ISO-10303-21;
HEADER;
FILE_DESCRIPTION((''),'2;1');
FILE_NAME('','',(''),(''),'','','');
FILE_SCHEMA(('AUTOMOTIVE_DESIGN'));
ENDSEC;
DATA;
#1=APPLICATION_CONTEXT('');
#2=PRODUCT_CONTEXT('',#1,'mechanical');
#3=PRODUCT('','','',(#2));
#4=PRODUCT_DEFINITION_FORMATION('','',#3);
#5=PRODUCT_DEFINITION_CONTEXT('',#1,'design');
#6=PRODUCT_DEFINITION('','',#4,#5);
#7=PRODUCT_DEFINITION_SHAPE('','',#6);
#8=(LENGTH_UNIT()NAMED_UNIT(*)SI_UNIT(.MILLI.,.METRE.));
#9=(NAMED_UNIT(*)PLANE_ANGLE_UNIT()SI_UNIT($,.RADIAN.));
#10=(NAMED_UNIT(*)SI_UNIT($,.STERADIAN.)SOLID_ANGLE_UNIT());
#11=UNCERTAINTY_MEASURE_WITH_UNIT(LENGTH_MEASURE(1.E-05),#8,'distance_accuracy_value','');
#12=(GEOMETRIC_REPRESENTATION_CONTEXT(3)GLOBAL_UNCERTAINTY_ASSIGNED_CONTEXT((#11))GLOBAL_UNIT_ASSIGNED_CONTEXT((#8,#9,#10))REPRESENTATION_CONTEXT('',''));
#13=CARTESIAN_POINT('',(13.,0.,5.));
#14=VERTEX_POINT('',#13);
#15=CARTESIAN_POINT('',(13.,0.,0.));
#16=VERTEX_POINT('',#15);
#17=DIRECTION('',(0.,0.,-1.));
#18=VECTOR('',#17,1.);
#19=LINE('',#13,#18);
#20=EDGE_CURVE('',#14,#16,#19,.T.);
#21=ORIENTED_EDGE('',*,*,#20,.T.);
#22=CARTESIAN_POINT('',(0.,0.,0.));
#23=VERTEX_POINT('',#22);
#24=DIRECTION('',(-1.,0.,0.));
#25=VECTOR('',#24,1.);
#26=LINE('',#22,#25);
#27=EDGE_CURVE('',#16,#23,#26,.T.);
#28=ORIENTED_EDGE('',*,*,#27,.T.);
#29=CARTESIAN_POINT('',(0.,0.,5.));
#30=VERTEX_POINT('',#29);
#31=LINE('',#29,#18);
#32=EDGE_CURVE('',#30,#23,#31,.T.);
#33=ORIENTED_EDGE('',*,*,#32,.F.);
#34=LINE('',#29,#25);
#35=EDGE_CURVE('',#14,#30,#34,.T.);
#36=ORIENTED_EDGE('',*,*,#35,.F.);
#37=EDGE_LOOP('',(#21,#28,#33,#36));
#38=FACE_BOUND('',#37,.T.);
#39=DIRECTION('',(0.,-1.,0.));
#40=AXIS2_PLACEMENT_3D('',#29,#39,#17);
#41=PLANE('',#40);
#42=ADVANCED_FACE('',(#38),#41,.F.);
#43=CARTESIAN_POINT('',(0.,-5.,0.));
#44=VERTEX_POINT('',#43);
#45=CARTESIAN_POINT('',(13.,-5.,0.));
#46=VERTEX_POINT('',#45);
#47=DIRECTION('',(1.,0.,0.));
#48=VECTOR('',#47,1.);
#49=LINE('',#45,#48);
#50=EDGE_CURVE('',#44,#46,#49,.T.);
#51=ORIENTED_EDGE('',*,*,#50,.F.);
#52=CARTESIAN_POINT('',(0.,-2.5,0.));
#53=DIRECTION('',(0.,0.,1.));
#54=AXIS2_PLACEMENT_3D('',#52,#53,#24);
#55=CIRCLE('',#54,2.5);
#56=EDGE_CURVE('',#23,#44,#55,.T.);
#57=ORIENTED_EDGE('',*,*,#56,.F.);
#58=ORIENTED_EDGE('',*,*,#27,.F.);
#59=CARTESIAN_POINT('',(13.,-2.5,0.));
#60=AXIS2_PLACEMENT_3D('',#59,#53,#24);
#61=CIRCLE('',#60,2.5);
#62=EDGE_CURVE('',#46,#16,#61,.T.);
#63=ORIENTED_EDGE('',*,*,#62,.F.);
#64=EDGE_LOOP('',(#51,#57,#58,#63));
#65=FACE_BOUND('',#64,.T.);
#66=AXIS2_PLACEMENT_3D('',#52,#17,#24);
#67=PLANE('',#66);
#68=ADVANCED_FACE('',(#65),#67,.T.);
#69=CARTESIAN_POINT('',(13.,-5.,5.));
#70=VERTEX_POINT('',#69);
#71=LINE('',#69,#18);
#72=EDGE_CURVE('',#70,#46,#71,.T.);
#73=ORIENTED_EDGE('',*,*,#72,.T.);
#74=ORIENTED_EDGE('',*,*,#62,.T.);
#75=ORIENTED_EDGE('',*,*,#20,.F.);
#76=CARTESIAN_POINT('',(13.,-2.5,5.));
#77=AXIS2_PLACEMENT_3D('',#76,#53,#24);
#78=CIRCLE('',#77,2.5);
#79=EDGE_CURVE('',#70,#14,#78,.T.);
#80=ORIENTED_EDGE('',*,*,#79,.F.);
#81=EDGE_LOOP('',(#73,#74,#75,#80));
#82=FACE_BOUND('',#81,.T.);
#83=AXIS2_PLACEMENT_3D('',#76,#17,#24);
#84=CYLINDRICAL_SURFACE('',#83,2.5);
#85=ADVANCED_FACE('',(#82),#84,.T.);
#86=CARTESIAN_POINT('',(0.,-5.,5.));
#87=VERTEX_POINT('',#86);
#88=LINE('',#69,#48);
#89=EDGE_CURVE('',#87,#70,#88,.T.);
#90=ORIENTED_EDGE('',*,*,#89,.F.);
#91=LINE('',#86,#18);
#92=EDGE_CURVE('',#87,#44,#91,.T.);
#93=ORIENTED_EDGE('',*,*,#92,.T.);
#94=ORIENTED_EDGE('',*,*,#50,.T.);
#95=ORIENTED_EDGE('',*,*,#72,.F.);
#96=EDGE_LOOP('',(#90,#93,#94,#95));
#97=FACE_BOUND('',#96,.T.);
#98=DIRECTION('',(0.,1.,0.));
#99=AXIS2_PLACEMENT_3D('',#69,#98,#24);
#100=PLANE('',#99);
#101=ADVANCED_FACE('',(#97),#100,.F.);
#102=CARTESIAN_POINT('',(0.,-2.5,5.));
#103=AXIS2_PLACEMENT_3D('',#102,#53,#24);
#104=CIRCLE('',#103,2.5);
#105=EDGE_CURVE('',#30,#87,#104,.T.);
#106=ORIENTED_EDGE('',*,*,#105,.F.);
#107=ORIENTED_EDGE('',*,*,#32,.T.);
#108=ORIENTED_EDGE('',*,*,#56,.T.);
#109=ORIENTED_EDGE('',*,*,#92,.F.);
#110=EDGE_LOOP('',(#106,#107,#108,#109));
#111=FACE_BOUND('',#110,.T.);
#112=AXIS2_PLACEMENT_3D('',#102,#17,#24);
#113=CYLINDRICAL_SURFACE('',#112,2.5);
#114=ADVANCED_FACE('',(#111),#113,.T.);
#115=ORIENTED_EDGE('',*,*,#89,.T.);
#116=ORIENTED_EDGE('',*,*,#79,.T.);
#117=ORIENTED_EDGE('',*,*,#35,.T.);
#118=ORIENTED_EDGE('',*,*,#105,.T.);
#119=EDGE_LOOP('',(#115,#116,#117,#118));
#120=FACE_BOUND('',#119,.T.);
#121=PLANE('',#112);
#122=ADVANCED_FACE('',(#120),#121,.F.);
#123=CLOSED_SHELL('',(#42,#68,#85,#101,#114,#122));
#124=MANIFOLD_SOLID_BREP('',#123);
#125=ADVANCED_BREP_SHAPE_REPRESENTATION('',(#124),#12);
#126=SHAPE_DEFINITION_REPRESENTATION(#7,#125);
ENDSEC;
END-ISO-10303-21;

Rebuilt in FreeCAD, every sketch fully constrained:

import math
import FreeCAD as App
import Part
import Sketcher
from FreeCAD import Vector
Q = App.Units.Quantity

doc = App.newDocument("Part")
body = doc.addObject("PartDesign::Body", "Body")

# Sketch on XY plane
sketch1 = body.newObject("Sketcher::SketchObject", "Sketch")
sketch1.AttachmentSupport = (doc.getObject("XY_Plane"), [""])
sketch1.MapMode = "FlatFace"
sketch1.addGeometry(Part.LineSegment(Vector(13, 0, 0), Vector(0, 0, 0)), False)
sketch1.addGeometry(Part.ArcOfCircle(Part.Circle(Vector(0, -2.5, 0), Vector(0, 0, 1), 2.5), math.radians(90), math.radians(270)), False)
sketch1.addGeometry(Part.LineSegment(Vector(0, -5, 0), Vector(13, -5, 0)), False)
sketch1.addGeometry(Part.ArcOfCircle(Part.Circle(Vector(13, -2.5, 0), Vector(0, 0, 1), 2.5), math.radians(-90), math.radians(90)), False)
sketch1.addConstraint(Sketcher.Constraint("Tangent", 0, 2, 1, 1))
sketch1.addConstraint(Sketcher.Constraint("Tangent", 1, 2, 2, 1))
sketch1.addConstraint(Sketcher.Constraint("Tangent", 2, 2, 3, 1))
sketch1.addConstraint(Sketcher.Constraint("Tangent", 3, 2, 0, 1))
sketch1.addConstraint(Sketcher.Constraint("Horizontal", 0))
sketch1.addConstraint(Sketcher.Constraint("Horizontal", 2))
sketch1.addConstraint(Sketcher.Constraint("Coincident", 0, 2, -1, 1))
sketch1.addConstraint(Sketcher.Constraint("Radius", 1, Q("2.5 mm")))
sketch1.addConstraint(Sketcher.Constraint("DistanceX", 0, 2, 0, 1, Q("13 mm")))
pad1 = body.newObject("PartDesign::Pad", "Pad")
pad1.Profile = sketch1
pad1.Length = 5

doc.recompute()
